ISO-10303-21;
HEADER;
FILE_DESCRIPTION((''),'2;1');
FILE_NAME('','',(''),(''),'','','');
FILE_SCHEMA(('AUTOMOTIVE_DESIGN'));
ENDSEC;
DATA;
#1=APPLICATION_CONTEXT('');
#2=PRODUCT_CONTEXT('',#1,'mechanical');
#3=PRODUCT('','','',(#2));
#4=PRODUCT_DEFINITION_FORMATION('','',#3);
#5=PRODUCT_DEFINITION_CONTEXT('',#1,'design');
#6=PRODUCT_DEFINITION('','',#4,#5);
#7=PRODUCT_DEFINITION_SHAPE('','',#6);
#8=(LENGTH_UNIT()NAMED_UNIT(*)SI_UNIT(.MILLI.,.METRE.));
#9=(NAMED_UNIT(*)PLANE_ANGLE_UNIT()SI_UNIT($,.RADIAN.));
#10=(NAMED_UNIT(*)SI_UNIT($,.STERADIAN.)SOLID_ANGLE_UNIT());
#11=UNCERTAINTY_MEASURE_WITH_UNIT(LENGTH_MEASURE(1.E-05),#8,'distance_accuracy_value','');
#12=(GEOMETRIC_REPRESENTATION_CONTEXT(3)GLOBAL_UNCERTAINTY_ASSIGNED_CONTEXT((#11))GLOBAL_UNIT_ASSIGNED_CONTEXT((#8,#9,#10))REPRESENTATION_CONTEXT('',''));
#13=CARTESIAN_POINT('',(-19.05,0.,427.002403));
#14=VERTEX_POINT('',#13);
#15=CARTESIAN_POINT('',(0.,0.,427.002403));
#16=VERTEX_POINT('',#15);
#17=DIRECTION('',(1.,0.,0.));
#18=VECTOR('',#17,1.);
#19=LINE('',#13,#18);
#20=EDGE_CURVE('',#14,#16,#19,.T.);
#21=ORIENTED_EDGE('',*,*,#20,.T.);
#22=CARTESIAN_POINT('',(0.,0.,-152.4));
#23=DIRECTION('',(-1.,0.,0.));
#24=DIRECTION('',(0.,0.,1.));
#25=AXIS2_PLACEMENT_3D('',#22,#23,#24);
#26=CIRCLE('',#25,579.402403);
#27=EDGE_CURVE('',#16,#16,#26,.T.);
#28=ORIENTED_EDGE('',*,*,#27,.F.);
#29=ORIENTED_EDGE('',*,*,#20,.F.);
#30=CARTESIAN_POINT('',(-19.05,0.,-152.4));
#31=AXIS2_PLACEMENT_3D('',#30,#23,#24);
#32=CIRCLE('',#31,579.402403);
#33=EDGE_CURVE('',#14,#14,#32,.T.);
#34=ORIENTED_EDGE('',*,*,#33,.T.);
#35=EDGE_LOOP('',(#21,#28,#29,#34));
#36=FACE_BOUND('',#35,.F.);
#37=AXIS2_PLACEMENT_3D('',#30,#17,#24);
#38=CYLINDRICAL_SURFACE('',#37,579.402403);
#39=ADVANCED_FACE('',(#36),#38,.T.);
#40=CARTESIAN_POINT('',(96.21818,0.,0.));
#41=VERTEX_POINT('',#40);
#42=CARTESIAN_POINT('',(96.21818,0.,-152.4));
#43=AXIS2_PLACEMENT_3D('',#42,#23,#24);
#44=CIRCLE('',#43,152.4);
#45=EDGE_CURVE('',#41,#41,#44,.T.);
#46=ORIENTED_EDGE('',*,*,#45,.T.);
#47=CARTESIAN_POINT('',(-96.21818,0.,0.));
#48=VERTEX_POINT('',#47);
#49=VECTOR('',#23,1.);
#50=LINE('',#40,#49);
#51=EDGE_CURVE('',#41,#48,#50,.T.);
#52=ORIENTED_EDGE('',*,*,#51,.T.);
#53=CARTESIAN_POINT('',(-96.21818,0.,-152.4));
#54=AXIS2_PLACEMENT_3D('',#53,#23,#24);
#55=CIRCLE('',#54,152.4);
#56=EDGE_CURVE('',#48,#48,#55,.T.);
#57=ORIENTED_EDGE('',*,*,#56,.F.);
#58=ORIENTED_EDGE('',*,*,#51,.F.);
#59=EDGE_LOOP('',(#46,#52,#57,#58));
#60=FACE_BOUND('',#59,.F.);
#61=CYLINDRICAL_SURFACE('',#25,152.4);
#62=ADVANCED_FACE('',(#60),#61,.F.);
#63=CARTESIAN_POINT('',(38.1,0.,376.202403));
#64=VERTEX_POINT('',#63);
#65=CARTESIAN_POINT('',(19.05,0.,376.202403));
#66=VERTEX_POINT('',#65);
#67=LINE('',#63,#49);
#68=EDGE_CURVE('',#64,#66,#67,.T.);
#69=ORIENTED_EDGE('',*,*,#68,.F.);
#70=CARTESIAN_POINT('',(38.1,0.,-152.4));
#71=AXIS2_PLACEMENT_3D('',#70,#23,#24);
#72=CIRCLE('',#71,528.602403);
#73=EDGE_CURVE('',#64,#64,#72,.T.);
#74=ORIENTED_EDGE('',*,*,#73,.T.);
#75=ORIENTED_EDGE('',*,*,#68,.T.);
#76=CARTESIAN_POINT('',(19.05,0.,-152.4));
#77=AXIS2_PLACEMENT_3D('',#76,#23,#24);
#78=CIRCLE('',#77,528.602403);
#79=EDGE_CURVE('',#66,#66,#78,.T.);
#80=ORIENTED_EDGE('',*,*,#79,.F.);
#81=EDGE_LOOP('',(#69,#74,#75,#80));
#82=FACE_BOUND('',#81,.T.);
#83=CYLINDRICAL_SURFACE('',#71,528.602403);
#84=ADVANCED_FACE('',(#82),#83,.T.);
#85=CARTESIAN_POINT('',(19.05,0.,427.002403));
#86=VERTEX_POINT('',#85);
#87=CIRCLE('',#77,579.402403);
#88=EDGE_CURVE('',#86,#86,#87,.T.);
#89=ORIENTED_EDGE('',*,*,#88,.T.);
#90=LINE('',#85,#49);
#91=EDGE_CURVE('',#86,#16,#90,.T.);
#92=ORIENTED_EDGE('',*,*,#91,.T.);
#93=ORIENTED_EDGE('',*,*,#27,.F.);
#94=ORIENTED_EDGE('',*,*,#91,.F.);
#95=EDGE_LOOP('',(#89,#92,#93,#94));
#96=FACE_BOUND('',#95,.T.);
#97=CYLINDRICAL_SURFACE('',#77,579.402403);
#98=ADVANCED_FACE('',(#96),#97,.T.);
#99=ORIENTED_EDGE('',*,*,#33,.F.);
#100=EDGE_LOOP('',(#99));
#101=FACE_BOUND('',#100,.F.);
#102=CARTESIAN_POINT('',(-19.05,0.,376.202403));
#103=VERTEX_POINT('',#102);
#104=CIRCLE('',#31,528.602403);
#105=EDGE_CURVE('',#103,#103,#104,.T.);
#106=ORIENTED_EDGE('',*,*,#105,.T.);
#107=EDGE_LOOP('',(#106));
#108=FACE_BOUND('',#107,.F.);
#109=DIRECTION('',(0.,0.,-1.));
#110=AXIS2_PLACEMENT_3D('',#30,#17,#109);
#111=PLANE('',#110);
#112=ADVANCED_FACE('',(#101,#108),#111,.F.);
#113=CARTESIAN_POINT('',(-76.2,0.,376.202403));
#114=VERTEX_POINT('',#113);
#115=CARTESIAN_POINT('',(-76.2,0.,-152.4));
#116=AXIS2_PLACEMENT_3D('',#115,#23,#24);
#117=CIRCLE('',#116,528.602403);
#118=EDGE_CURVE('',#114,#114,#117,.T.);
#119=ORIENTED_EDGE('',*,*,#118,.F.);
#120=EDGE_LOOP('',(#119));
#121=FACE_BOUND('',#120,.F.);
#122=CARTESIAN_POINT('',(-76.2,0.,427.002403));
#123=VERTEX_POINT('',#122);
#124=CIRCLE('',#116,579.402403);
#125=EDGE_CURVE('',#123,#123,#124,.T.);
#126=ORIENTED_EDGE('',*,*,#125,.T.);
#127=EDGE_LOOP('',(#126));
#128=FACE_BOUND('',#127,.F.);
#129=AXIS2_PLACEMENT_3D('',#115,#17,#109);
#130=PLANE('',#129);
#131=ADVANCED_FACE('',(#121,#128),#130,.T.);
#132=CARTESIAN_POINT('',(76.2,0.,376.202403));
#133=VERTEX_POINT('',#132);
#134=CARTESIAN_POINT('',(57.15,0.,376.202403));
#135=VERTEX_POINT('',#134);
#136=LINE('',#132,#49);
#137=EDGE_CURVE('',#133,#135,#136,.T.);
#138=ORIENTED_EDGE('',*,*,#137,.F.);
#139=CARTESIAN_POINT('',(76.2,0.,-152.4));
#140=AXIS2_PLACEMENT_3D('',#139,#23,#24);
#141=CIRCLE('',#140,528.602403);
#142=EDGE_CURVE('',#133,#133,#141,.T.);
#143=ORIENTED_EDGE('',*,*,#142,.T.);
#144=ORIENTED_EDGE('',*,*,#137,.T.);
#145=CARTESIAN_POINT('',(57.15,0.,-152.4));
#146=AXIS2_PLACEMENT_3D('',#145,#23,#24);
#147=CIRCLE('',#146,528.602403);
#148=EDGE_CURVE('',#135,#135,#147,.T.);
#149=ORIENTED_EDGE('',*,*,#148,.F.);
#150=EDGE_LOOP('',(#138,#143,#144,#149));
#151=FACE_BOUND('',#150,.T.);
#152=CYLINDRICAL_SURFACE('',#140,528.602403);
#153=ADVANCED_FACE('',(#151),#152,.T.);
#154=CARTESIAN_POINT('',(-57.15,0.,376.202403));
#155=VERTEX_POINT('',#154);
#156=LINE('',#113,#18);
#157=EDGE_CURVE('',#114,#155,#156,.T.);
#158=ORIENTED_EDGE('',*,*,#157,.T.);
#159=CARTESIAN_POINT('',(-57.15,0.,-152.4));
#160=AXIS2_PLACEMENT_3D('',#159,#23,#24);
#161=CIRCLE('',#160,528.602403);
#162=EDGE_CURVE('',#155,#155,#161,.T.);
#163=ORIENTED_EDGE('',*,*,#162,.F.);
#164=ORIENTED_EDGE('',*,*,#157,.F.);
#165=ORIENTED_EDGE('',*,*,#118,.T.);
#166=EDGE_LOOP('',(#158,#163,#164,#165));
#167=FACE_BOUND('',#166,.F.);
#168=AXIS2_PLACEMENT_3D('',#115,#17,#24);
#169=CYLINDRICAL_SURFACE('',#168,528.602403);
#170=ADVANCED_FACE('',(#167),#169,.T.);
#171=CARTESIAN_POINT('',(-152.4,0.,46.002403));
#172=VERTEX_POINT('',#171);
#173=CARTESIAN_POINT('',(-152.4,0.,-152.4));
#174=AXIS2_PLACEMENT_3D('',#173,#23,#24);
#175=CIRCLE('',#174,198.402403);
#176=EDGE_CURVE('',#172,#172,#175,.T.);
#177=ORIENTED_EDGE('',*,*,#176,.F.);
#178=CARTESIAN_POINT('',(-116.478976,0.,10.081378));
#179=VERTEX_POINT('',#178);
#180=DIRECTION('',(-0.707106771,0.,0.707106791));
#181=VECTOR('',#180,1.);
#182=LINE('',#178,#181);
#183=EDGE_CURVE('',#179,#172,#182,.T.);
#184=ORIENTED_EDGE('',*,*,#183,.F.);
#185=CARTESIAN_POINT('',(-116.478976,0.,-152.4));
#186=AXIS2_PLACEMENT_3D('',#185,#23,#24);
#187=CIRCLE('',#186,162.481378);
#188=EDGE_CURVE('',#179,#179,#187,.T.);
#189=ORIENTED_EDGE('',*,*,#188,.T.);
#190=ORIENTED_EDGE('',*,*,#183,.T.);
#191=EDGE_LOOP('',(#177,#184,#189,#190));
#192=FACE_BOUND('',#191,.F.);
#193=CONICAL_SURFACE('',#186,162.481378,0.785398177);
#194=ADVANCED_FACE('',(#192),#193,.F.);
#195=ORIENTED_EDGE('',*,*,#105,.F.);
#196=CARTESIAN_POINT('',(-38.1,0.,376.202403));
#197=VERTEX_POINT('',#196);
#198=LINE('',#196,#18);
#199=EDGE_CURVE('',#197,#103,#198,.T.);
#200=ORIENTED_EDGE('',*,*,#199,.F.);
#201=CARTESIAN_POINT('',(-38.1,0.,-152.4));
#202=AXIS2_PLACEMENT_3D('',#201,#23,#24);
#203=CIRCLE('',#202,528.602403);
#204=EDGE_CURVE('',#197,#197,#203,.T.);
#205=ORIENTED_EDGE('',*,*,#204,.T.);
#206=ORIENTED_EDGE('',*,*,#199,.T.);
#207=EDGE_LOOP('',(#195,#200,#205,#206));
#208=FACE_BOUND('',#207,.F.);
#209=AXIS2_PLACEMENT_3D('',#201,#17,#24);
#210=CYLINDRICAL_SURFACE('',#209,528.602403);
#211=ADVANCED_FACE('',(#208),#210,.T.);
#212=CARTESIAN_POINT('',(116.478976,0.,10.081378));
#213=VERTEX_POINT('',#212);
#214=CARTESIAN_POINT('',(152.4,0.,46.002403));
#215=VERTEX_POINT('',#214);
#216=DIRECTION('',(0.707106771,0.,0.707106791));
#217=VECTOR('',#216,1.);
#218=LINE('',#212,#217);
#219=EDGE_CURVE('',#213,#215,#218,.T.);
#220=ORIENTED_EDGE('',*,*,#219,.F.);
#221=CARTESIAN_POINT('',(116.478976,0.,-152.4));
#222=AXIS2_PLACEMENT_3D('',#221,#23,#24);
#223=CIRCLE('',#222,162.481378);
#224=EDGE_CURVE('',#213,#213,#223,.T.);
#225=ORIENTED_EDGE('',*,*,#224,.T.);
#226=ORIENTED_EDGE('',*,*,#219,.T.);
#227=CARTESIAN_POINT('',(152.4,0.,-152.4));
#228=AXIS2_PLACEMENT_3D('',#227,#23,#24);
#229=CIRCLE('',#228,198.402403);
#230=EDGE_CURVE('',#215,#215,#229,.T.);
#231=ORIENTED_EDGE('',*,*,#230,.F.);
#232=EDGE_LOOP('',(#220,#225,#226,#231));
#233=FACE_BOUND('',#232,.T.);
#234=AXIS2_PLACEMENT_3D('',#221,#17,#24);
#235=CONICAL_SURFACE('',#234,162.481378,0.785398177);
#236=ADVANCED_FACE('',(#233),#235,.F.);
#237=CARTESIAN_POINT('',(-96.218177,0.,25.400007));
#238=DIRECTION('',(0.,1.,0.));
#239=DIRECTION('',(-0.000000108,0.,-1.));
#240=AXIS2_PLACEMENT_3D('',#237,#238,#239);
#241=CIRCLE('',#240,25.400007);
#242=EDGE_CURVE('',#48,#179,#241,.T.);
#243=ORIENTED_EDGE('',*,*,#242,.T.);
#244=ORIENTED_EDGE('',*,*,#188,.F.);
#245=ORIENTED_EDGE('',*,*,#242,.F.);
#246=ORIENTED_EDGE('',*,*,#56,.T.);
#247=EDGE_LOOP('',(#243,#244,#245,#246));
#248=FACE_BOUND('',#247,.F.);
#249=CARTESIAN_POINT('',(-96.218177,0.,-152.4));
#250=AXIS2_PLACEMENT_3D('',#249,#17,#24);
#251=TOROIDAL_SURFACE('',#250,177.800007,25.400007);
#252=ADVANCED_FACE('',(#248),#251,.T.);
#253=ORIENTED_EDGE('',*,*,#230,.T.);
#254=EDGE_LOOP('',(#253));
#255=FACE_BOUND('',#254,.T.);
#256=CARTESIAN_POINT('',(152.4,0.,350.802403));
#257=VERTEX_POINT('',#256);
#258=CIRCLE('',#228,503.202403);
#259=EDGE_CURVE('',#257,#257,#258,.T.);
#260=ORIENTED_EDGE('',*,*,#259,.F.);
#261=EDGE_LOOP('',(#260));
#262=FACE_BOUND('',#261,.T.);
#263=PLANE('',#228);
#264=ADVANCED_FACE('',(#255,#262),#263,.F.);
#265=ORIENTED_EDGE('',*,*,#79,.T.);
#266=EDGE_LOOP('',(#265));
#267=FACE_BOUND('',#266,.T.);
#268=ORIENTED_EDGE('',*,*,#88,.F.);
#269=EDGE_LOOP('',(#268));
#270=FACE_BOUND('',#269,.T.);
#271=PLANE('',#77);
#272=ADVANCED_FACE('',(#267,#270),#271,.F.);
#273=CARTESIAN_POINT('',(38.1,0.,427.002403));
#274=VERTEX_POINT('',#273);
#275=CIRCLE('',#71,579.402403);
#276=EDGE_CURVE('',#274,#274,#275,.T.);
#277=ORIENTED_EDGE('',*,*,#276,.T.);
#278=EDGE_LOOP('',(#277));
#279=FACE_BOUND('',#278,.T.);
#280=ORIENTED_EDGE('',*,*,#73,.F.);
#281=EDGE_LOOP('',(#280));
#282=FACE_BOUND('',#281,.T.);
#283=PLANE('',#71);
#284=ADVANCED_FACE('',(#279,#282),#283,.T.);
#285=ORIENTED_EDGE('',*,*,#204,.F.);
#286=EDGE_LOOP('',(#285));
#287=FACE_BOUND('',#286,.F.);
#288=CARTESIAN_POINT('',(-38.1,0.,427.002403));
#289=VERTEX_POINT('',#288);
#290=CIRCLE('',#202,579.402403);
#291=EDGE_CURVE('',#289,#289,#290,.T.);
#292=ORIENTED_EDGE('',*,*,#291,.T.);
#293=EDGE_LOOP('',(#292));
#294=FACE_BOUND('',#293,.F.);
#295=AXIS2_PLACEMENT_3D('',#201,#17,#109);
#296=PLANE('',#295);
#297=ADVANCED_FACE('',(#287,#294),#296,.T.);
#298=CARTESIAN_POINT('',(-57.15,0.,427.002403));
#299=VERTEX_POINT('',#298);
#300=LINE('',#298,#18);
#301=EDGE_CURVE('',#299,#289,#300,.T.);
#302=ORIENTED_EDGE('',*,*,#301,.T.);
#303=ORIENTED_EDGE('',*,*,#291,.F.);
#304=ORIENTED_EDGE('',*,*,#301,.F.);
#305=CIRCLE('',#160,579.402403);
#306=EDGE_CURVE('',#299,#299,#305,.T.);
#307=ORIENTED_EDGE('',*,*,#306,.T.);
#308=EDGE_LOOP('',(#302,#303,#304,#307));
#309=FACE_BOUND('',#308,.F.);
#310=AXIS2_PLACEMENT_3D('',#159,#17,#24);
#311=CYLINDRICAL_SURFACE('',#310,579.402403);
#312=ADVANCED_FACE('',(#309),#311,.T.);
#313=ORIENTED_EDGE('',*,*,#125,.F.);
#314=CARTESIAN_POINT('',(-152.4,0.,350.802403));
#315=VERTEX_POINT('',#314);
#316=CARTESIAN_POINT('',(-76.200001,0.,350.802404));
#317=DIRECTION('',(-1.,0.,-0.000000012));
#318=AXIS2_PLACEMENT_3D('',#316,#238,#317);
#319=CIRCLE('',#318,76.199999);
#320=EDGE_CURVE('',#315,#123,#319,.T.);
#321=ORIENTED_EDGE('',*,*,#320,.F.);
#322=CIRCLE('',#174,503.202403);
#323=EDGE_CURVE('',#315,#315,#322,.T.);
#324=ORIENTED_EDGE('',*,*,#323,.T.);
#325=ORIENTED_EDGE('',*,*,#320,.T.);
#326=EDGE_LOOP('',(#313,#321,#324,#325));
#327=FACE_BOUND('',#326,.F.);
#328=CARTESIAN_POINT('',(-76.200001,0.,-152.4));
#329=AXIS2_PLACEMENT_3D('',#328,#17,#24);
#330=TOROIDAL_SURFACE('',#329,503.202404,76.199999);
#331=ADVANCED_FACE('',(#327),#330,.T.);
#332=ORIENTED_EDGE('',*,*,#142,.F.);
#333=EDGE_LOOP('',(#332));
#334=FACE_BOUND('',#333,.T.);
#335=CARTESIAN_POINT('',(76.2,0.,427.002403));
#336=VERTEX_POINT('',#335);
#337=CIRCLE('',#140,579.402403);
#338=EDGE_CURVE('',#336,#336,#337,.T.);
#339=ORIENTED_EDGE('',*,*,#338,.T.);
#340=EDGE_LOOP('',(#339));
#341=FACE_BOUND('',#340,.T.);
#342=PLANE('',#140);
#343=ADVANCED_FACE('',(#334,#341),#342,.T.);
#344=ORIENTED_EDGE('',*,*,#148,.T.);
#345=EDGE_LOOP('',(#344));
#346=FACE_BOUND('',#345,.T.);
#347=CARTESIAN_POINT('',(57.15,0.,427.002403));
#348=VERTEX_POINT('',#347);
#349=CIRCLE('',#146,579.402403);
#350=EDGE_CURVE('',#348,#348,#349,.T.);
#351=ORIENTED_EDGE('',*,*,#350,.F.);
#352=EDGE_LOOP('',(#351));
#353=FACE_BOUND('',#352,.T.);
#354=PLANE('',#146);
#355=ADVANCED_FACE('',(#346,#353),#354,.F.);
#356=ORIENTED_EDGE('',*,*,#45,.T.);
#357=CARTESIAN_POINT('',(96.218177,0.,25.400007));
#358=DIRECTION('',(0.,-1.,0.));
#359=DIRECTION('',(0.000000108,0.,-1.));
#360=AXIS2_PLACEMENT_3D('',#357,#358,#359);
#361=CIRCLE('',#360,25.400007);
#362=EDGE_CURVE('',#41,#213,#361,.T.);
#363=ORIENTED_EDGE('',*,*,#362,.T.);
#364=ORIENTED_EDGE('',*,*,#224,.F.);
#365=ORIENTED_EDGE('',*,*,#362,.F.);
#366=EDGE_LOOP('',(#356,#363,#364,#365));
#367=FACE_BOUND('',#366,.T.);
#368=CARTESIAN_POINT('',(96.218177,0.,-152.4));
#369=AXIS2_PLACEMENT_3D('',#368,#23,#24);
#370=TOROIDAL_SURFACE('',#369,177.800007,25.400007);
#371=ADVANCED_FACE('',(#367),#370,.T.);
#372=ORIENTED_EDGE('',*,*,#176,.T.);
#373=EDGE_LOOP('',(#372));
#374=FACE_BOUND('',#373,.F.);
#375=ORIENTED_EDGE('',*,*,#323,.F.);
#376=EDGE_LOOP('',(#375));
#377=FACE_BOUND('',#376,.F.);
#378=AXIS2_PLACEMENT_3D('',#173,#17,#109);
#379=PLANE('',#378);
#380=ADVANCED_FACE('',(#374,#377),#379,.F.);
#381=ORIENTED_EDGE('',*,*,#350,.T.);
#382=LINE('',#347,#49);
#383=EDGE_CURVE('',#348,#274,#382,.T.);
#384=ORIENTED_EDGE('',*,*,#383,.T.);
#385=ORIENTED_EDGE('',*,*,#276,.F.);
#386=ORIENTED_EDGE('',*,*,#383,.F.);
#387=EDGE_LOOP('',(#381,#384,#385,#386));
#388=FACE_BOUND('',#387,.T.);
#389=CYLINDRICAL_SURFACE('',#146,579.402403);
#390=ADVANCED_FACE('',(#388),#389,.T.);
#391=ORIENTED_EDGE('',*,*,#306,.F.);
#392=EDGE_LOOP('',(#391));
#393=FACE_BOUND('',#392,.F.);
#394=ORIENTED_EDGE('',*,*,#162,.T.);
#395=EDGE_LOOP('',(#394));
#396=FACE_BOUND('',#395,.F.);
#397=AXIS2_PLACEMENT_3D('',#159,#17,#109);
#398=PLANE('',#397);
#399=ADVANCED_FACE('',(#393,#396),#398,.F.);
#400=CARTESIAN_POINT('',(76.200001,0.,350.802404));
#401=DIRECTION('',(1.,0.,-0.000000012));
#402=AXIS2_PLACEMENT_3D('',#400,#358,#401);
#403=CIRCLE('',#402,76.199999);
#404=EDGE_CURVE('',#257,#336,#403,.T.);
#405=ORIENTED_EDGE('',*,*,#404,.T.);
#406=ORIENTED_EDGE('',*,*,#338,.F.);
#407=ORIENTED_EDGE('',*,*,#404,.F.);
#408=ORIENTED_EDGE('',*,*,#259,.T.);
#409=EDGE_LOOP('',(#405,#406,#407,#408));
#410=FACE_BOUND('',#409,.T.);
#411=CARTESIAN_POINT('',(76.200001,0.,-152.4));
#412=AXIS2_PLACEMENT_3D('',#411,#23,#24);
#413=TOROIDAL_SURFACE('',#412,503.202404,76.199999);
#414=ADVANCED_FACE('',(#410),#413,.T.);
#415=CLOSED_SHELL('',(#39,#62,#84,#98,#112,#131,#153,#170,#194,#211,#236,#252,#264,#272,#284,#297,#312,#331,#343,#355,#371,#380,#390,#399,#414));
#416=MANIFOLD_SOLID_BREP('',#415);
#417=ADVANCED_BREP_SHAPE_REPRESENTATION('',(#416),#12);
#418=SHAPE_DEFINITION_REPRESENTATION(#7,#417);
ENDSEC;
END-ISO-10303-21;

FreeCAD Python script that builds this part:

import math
import FreeCAD as App
import Part
import Sketcher
Q = App.Units.Quantity

doc = App.newDocument("Part")
params = doc.addObject("Spreadsheet::Sheet", "Params")
for row, (alias, value) in enumerate([
    ("sketch1_radius", "3 in"),
    ("sketch1_width", "6 in"),
    ("sketch1_height", "12 in"),
    ("sketch1_height2", "2 in"),
    ("sketch1_length", "2 in"),
    ("revolution_angle", "360 deg"),
], start=1):
    params.set(f"A{row}", alias)
    params.set(f"B{row}", "=" + value)
    params.setAlias(f"B{row}", alias)

body = doc.addObject("PartDesign::Body", "Body")

sketch1 = body.newObject("Sketcher::SketchObject", "Sketch")
sketch1.AttachmentSupport = (doc.getObject("XZ_Plane"), [""])
sketch1.MapMode = "FlatFace"
sketch1.addGeometry([
    Part.LineSegment(App.Vector(0, 427, 0), App.Vector(0, 0, 0)),
    Part.LineSegment(App.Vector(0, 0, 0), App.Vector(96, 0, 0)),
    Part.ArcOfCircle(Part.Circle(App.Vector(96, 25, 0), App.Vector(0, 0, 1), 25), math.radians(-90), math.radians(-37)),
    Part.LineSegment(App.Vector(116, 10, 0), App.Vector(152, 46, 0)),
    Part.LineSegment(App.Vector(152, 46, 0), App.Vector(152, 351, 0)),
    Part.ArcOfCircle(Part.Circle(App.Vector(76, 351, 0), App.Vector(0, 0, 1), 76), math.radians(0), math.radians(90)),
    Part.LineSegment(App.Vector(76, 427, 0), App.Vector(76, 376, 0)),
    Part.LineSegment(App.Vector(76, 376, 0), App.Vector(57, 376, 0)),
    Part.LineSegment(App.Vector(57, 376, 0), App.Vector(57, 427, 0)),
    Part.LineSegment(App.Vector(57, 427, 0), App.Vector(38, 427, 0)),
    Part.LineSegment(App.Vector(38, 427, 0), App.Vector(38, 376, 0)),
    Part.LineSegment(App.Vector(38, 376, 0), App.Vector(19, 376, 0)),
    Part.LineSegment(App.Vector(19, 376, 0), App.Vector(19, 427, 0)),
    Part.LineSegment(App.Vector(19, 427, 0), App.Vector(0, 427, 0)),
], False)
sketch1.addGeometry(Part.LineSegment(App.Vector(152, -152, 0), App.Vector(0, -152, 0)), True)
sketch1.addConstraint([
    Sketcher.Constraint("Coincident", 0, 2, 1, 1),
    Sketcher.Constraint("Tangent", 1, 2, 2, 1),
    Sketcher.Constraint("Coincident", 2, 2, 3, 1),
    Sketcher.Constraint("Coincident", 3, 2, 4, 1),
    Sketcher.Constraint("Tangent", 4, 2, 5, 1),
    Sketcher.Constraint("Coincident", 5, 2, 6, 1),
    Sketcher.Constraint("Coincident", 6, 2, 7, 1),
    Sketcher.Constraint("Coincident", 7, 2, 8, 1),
    Sketcher.Constraint("Coincident", 8, 2, 9, 1),
    Sketcher.Constraint("Coincident", 9, 2, 10, 1),
    Sketcher.Constraint("Coincident", 10, 2, 11, 1),
    Sketcher.Constraint("Coincident", 11, 2, 12, 1),
    Sketcher.Constraint("Coincident", 12, 2, 13, 1),
    Sketcher.Constraint("Coincident", 13, 2, 0, 1),
    Sketcher.Constraint("Vertical", 0),
    Sketcher.Constraint("Horizontal", 1),
    Sketcher.Constraint("Vertical", 4),
    Sketcher.Constraint("Vertical", 6),
    Sketcher.Constraint("Horizontal", 7),
    Sketcher.Constraint("Vertical", 8),
    Sketcher.Constraint("Horizontal", 9),
    Sketcher.Constraint("Vertical", 10),
    Sketcher.Constraint("Horizontal", 11),
    Sketcher.Constraint("Vertical", 12),
    Sketcher.Constraint("Horizontal", 13),
    Sketcher.Constraint("Horizontal", 14),
    Sketcher.Constraint("Coincident", 0, 2, -1, 1),
    Sketcher.Constraint("PointOnObject", 14, 2, -2),
    Sketcher.Constraint("Horizontal", 5, 2, 8, 2),
    Sketcher.Constraint("Horizontal", 7, 2, 10, 2),
    Sketcher.Constraint("Horizontal", 9, 2, 12, 2),
    Sketcher.Constraint("Vertical", 4, 2, 14, 1),
    Sketcher.Constraint("Equal", 7, 9),
    Sketcher.Constraint("Equal", 9, 11),
    Sketcher.Constraint("Equal", 11, 13),
    Sketcher.Constraint("Radius", 5, Q("3 in")),
    Sketcher.Constraint("DistanceX", 14, 2, 14, 1, Q("6 in")),
    Sketcher.Constraint("DistanceY", 4, 1, 4, 2, Q("12 in")),
    Sketcher.Constraint("DistanceY", 6, 2, 6, 1, Q("2 in")),
    Sketcher.Constraint("Distance", 3, Q("2 in")),
    Sketcher.Constraint("DistanceX", -1, 1, 5, 2, Q("3 in")),
    Sketcher.Constraint("DistanceY", 14, 1, -1, 1, Q("6 in")),
    Sketcher.Constraint("Angle", 3, Q("45.000001 deg")),
    Sketcher.Constraint("Radius", 2, Q("25.400007 mm")),
    Sketcher.Constraint("DistanceX", 1, 1, 1, 2, Q("96.21818 mm")),
])
sketch1.setExpression("Constraints[35]", "Params.sketch1_radius")
sketch1.setExpression("Constraints[36]", "Params.sketch1_width")
sketch1.setExpression("Constraints[37]", "Params.sketch1_height")
sketch1.setExpression("Constraints[38]", "Params.sketch1_height2")
sketch1.setExpression("Constraints[39]", "Params.sketch1_length")
revolution = body.newObject("PartDesign::Revolution", "Revolution")
revolution.Profile = sketch1
revolution.ReferenceAxis = (sketch1, ["Axis0"])
revolution.setExpression("Angle", "Params.revolution_angle")
body2 = doc.addObject("PartDesign::Body", "Body001")
doc.recompute()

body2.BaseFeature = body
doc.recompute()

mirroring = doc.addObject("Part::Mirroring", "Mirroring")
mirroring.Source = body
mirroring.Base = App.Vector(0, 0, -152.4)
mirroring.Normal = App.Vector(-1, 0, 0)
body3 = doc.addObject("PartDesign::Body", "Body002")
body3.BaseFeature = mirroring
boolean = body2.newObject("PartDesign::Boolean", "Boolean")
boolean.Type = "Fuse"
boolean.addObjects([body3])
doc.recompute()
mirroring.Visibility = False

doc.recompute()
